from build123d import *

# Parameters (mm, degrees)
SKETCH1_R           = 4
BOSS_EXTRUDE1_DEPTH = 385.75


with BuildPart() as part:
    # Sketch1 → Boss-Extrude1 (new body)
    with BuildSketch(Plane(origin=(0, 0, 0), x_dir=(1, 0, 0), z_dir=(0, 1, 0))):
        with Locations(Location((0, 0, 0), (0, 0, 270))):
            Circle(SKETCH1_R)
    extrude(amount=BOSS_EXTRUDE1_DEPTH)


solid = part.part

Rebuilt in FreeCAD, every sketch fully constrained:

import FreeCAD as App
import Part
import Sketcher
from FreeCAD import Vector
Q = App.Units.Quantity

doc = App.newDocument("Part")
params = doc.addObject("Spreadsheet::Sheet", "Params")
for row, (alias, value) in enumerate([
    ("sketch1_diameter", "8 mm"),
    ("pad1_length", "385.75 mm"),
], start=1):
    params.set(f"A{row}", alias)
    params.set(f"B{row}", "=" + value)
    params.setAlias(f"B{row}", alias)

body = doc.addObject("PartDesign::Body", "Body")

# Sketch on XZ plane
sketch1 = doc.addObject("Sketcher::SketchObject", "Sketch")
body.addObject(sketch1)
sketch1.AttachmentSupport = (doc.XZ_Plane, [""])
sketch1.MapMode = "FlatFace"
sketch1.addGeometry(Part.Circle(Vector(0, 0, 0), Vector(0, 0, 1), 4), False)
sketch1.addConstraint(Sketcher.Constraint("Coincident", 0, 3, -1, 1))
sketch1.addConstraint(Sketcher.Constraint("Diameter", 0, Q("8 mm")))
sketch1.setExpression("Constraints[1]", "Params.sketch1_diameter")
pad1 = doc.addObject("PartDesign::Pad", "Pad")
body.addObject(pad1)
pad1.Profile = sketch1
pad1.setExpression("Length", "Params.pad1_length")
pad1.Reversed = True

doc.recompute()
